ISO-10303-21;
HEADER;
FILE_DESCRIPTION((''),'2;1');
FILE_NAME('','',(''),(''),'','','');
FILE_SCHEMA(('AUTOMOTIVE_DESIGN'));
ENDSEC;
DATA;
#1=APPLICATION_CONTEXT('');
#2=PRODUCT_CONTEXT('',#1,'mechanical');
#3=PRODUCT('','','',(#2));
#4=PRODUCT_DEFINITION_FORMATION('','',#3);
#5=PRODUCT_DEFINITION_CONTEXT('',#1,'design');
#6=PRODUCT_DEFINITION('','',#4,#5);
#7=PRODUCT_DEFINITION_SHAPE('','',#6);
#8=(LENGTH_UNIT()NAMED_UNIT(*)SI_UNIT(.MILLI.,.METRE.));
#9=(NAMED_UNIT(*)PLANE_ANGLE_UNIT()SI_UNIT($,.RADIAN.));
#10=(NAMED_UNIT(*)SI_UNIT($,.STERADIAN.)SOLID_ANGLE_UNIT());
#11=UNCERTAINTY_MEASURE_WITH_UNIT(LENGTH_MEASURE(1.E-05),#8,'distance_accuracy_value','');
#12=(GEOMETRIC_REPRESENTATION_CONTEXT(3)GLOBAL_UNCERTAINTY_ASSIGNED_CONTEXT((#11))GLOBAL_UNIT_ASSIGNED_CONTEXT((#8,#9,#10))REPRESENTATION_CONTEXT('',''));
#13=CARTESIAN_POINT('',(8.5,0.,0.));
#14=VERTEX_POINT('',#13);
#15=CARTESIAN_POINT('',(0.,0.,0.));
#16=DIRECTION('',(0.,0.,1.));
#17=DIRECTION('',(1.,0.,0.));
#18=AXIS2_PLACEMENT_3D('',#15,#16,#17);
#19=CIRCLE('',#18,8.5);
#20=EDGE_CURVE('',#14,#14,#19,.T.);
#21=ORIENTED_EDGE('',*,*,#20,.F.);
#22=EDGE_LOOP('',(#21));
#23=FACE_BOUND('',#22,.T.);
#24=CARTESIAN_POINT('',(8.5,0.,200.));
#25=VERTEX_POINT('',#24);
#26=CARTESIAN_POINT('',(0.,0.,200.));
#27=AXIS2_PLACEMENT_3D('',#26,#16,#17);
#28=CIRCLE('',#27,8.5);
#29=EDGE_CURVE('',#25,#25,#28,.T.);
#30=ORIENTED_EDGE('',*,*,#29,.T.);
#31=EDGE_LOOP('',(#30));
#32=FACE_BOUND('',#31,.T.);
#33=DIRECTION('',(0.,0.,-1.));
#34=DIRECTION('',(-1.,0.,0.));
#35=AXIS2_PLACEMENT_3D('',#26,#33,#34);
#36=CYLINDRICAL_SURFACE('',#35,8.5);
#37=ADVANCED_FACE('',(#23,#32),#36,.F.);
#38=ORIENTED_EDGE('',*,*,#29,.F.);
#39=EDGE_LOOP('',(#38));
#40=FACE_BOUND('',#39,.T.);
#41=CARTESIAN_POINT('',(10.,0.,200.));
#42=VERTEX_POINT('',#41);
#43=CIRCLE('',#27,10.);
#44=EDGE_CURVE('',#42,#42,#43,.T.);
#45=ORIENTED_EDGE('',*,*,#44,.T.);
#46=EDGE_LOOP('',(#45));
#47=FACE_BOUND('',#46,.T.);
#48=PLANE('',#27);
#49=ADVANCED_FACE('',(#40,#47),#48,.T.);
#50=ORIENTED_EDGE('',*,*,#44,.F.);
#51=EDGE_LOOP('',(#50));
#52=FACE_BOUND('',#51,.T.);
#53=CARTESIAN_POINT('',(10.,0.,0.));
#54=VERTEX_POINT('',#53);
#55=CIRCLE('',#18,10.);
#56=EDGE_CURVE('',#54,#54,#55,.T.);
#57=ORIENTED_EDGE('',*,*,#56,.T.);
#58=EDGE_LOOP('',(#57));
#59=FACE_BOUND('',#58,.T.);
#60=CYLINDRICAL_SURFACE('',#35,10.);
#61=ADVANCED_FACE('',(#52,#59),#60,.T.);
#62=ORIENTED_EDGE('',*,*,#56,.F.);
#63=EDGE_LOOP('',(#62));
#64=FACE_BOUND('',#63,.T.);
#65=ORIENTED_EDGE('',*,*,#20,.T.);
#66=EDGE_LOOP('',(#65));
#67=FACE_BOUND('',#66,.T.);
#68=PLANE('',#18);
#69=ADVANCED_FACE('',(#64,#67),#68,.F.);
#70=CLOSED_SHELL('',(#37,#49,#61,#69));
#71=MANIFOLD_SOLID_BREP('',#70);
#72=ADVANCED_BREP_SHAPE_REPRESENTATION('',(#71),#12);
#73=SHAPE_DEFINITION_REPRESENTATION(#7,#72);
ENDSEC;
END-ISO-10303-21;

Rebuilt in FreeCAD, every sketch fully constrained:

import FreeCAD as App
import Part
import Sketcher
Q = App.Units.Quantity

doc = App.newDocument("Part")
params = doc.addObject("Spreadsheet::Sheet", "Params")
for row, (alias, value) in enumerate([
    ("sketch1_diameter", "20 mm"),
    ("sketch1_diameter2", "17 mm"),
    ("pad1_length", "200 mm"),
], start=1):
    params.set(f"A{row}", alias)
    params.set(f"B{row}", "=" + value)
    params.setAlias(f"B{row}", alias)

body = doc.addObject("PartDesign::Body", "Body")

# Sketch on XY plane
sketch1 = body.newObject("Sketcher::SketchObject", "Sketch")
sketch1.AttachmentSupport = (doc.getObject("XY_Plane"), [""])
sketch1.MapMode = "FlatFace"
sketch1.addGeometry([
    Part.Circle(App.Vector(0, 0, 0), App.Vector(0, 0, 1), 10),
    Part.Circle(App.Vector(0, 0, 0), App.Vector(0, 0, 1), 8.5),
], False)
sketch1.addConstraint([
    Sketcher.Constraint("Coincident", 0, 3, -1, 1),
    Sketcher.Constraint("Coincident", 1, 3, -1, 1),
    Sketcher.Constraint("Diameter", 0, Q("20 mm")),
    Sketcher.Constraint("Diameter", 1, Q("17 mm")),
])
sketch1.setExpression("Constraints[2]", "Params.sketch1_diameter")
sketch1.setExpression("Constraints[3]", "Params.sketch1_diameter2")
pad1 = body.newObject("PartDesign::Pad", "Pad")
pad1.Profile = sketch1
pad1.setExpression("Length", "Params.pad1_length")

doc.recompute()
